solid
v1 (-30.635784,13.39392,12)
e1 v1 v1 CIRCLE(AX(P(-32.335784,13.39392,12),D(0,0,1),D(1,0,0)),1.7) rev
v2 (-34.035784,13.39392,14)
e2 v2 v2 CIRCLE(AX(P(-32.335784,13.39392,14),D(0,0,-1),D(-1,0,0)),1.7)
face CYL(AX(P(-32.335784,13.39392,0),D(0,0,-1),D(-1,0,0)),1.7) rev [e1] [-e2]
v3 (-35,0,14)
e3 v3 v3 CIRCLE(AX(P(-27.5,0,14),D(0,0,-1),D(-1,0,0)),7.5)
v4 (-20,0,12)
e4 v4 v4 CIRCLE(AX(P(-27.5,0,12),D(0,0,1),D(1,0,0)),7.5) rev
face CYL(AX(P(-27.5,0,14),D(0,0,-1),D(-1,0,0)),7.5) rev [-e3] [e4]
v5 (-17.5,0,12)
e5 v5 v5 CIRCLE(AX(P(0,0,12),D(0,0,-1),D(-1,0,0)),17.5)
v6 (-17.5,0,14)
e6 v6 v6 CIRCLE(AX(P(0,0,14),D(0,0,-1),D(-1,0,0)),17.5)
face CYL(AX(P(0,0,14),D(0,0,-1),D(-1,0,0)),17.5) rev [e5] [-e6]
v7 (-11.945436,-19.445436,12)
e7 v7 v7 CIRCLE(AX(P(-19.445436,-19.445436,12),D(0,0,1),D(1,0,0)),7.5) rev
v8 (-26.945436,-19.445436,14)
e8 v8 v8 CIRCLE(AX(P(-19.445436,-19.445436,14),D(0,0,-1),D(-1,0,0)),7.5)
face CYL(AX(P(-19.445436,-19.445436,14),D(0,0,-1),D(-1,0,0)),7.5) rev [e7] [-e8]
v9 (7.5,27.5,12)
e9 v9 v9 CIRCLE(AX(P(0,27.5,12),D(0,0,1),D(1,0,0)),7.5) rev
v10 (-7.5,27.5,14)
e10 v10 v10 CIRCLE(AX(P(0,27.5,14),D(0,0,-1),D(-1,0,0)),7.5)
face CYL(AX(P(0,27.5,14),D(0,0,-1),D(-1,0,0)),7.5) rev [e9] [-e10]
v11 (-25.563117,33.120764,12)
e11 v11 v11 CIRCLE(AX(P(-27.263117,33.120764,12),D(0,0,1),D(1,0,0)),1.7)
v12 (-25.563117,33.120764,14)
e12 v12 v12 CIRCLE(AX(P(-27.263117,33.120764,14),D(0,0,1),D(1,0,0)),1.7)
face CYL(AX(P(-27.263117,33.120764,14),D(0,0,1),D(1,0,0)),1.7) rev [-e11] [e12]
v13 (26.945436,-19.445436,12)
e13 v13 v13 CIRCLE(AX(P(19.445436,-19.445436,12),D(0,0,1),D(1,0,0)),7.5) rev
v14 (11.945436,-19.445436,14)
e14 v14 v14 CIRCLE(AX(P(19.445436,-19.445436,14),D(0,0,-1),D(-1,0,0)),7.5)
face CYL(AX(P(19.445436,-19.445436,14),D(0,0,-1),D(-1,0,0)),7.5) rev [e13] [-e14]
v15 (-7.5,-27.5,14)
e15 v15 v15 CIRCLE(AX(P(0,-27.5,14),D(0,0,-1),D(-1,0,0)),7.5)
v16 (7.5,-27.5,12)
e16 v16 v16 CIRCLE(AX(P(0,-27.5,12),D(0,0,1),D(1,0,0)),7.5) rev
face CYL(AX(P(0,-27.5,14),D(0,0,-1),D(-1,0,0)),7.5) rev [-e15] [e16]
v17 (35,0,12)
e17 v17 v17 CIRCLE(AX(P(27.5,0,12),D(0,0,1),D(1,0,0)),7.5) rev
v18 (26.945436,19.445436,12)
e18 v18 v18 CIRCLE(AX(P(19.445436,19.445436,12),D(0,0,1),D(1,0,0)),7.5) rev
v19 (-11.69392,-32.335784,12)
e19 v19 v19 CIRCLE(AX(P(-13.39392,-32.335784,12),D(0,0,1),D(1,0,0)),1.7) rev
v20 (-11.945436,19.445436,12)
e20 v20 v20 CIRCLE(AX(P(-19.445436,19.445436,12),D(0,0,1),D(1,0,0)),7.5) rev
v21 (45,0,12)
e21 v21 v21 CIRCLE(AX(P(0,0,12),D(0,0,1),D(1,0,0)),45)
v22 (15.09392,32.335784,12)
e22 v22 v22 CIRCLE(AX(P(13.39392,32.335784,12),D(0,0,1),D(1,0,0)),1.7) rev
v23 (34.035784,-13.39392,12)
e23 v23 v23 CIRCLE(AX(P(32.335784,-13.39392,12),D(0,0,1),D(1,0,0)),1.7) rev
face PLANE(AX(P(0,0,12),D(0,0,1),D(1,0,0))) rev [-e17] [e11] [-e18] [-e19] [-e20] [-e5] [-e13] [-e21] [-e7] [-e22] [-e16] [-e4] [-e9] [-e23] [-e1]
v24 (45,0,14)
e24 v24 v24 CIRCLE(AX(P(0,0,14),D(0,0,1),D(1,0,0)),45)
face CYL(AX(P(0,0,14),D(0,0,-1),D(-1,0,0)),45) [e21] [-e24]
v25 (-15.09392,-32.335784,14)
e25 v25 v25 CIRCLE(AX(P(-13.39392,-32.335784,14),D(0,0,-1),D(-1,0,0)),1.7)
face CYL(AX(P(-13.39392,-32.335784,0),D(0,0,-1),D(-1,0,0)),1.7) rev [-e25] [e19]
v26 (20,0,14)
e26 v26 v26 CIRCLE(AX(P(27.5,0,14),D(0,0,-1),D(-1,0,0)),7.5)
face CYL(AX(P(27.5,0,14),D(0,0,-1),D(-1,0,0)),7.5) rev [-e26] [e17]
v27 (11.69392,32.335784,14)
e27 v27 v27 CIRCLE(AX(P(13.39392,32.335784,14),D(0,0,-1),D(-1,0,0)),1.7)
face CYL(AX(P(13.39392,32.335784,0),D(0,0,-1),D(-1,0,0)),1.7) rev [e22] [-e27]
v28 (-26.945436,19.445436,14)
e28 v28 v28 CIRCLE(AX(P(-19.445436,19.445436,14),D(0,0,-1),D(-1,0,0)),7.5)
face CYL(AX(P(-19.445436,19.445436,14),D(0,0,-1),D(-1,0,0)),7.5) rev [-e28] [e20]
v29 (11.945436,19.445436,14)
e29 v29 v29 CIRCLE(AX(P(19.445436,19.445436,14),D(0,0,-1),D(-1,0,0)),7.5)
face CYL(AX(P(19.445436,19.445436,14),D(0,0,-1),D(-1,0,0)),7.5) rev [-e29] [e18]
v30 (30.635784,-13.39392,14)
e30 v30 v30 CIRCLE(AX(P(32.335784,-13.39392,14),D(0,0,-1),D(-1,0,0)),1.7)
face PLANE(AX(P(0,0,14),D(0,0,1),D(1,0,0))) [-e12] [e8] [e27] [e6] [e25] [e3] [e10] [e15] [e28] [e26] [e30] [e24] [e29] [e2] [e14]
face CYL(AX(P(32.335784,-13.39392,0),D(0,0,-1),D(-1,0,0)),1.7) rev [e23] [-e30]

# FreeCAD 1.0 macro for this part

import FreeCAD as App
import Part
import Sketcher
Q = App.Units.Quantity

doc = App.newDocument("Part")
params = doc.addObject("Spreadsheet::Sheet", "Params")
for row, (alias, value) in enumerate([
    ("sketch1_diameter", "80 mm"),
    ("pad1_length", "12 mm"),
    ("sketch2_diameter", "90 mm"),
    ("pad2_length", "2 mm"),
    ("sketch3_diameter", "15 mm"),
    ("sketch4_diameter", "3.4 mm"),
    ("hole_diameter", "3.4 mm"),
    ("sketch5_diameter", "3.4 mm"),
    ("hole2_diameter", "3.4 mm"),
    ("sketch6_diameter", "15 mm"),
    ("sketch7_diameter", "3.4 mm"),
    ("hole3_diameter", "3.4 mm"),
    ("sketch8_diameter", "34 mm"),
    ("pocket3_length", "1.5 mm"),
    ("pocket4_length", "12 mm"),
    ("sketch10_diameter", "35 mm"),
], start=1):
    params.set(f"A{row}", alias)
    params.set(f"B{row}", "=" + value)
    params.setAlias(f"B{row}", alias)

body = doc.addObject("PartDesign::Body", "Body")

# Sketch on XY plane
sketch1 = body.newObject("Sketcher::SketchObject", "Sketch")
sketch1.AttachmentSupport = (doc.getObject("XY_Plane"), [""])
sketch1.MapMode = "FlatFace"
sketch1.addGeometry(Part.Circle(App.Vector(0, 0, 0), App.Vector(0, 0, 1), 40), False)
sketch1.addConstraint([
    Sketcher.Constraint("Coincident", 0, 3, -1, 1),
    Sketcher.Constraint("Diameter", 0, Q("80 mm")),
])
sketch1.setExpression("Constraints[1]", "Params.sketch1_diameter")
pad1 = body.newObject("PartDesign::Pad", "Pad")
pad1.Profile = sketch1
pad1.setExpression("Length", "Params.pad1_length")

# Sketch on XY plane
sketch2 = body.newObject("Sketcher::SketchObject", "Sketch001")
sketch2.AttachmentSupport = (doc.getObject("XY_Plane"), [""])
sketch2.MapMode = "FlatFace"
sketch2.AttachmentOffset = App.Placement(App.Vector(0, 0, 12), App.Rotation())
sketch2.addGeometry(Part.Circle(App.Vector(0, 0, 0), App.Vector(0, 0, 1), 45), False)
sketch2.addConstraint([
    Sketcher.Constraint("Coincident", 0, 3, -1, 1),
    Sketcher.Constraint("Diameter", 0, Q("90 mm")),
])
sketch2.setExpression("Constraints[1]", "Params.sketch2_diameter")
pad2 = body.newObject("PartDesign::Pad", "Pad001")
pad2.Profile = sketch2
pad2.setExpression("Length", "Params.pad2_length")

# Sketch on XY plane
sketch3 = body.newObject("Sketcher::SketchObject", "Sketch002")
sketch3.AttachmentSupport = (doc.getObject("XY_Plane"), [""])
sketch3.MapMode = "FlatFace"
sketch3.AttachmentOffset = App.Placement(App.Vector(0, 0, 14), App.Rotation())
sketch3.addGeometry(Part.Circle(App.Vector(0, 0, 0), App.Vector(0, 0, 1), 7.5), False)
sketch3.addConstraint([
    Sketcher.Constraint("Coincident", 0, 3, -1, 1),
    Sketcher.Constraint("Diameter", 0, Q("15 mm")),
])
sketch3.setExpression("Constraints[1]", "Params.sketch3_diameter")
pocket1 = body.newObject("PartDesign::Pocket", "Pocket")
pocket1.Profile = sketch3
pocket1.Type = "ThroughAll"

# Sketch on XY plane
sketch4 = body.newObject("Sketcher::SketchObject", "Sketch003")
sketch4.AttachmentSupport = (doc.getObject("XY_Plane"), [""])
sketch4.MapMode = "FlatFace"
sketch4.AttachmentOffset = App.Placement(App.Vector(0, 0, 14), App.Rotation())
sketch4.addGeometry(Part.Circle(App.Vector(-27.263117, 33.120764, 0), App.Vector(0, 0, 1), 1.7), False)
sketch4.addConstraint([
    Sketcher.Constraint("Diameter", 0, Q("3.4 mm")),
    Sketcher.Constraint("DistanceX", 0, 3, -1, 1, Q("27.263117 mm")),
    Sketcher.Constraint("DistanceY", -1, 1, 0, 3, Q("33.120764 mm")),
])
sketch4.setExpression("Constraints[0]", "Params.sketch4_diameter")
doc.recompute()
hole = body.newObject("PartDesign::Hole", "Hole")
hole.Profile = sketch4
hole.ThreadType = "None"
hole.setExpression("Diameter", "Params.hole_diameter")
hole.DepthType = "ThroughAll"

# Sketch on XY plane
sketch5 = body.newObject("Sketcher::SketchObject", "Sketch004")
sketch5.AttachmentSupport = (doc.getObject("XY_Plane"), [""])
sketch5.MapMode = "FlatFace"
sketch5.AttachmentOffset = App.Placement(App.Vector(0, 0, 14), App.Rotation())
sketch5.addGeometry([
    Part.Circle(App.Vector(0, 12.5, 0), App.Vector(0, 0, 1), 1.7),
    Part.Circle(App.Vector(-12.5, 0, 0), App.Vector(0, 0, 1), 1.7),
    Part.Circle(App.Vector(0, -12.5, 0), App.Vector(0, 0, 1), 1.7),
    Part.Circle(App.Vector(12.5, 0, 0), App.Vector(0, 0, 1), 1.7),
], False)
sketch5.addConstraint([
    Sketcher.Constraint("Equal", 0, 1),
    Sketcher.Constraint("Equal", 1, 2),
    Sketcher.Constraint("Equal", 2, 3),
    Sketcher.Constraint("Symmetric", 0, 3, 2, 3, -1, 1),
    Sketcher.Constraint("Symmetric", 1, 3, 3, 3, -1, 1),
    Sketcher.Constraint("PointOnObject", 0, 3, -2),
    Sketcher.Constraint("PointOnObject", 1, 3, -1),
    Sketcher.Constraint("Diameter", 0, Q("3.4 mm")),
    Sketcher.Constraint("DistanceY", 2, 3, 0, 3, Q("25 mm")),
    Sketcher.Constraint("DistanceX", 1, 3, 3, 3, Q("25 mm")),
])
sketch5.setExpression("Constraints[7]", "Params.sketch5_diameter")
doc.recompute()
hole2 = body.newObject("PartDesign::Hole", "Hole001")
hole2.Profile = sketch5
hole2.ThreadType = "None"
hole2.setExpression("Diameter", "Params.hole2_diameter")
hole2.DepthType = "ThroughAll"

# Sketch on XY plane
sketch6 = body.newObject("Sketcher::SketchObject", "Sketch005")
sketch6.AttachmentSupport = (doc.getObject("XY_Plane"), [""])
sketch6.MapMode = "FlatFace"
sketch6.addGeometry([
    Part.Circle(App.Vector(0, 27.5, 0), App.Vector(0, 0, 1), 7.5),  # 0
    Part.Circle(App.Vector(-19.445436, 19.445436, 0), App.Vector(0, 0, 1), 7.5),  # 1
    Part.Circle(App.Vector(-27.5, 0, 0), App.Vector(0, 0, 1), 7.5),  # 2
    Part.Circle(App.Vector(-19.445436, -19.445436, 0), App.Vector(0, 0, 1), 7.5),  # 3
    Part.Circle(App.Vector(0, -27.5, 0), App.Vector(0, 0, 1), 7.5),  # 4
    Part.Circle(App.Vector(19.445436, -19.445436, 0), App.Vector(0, 0, 1), 7.5),  # 5
    Part.Circle(App.Vector(27.5, 0, 0), App.Vector(0, 0, 1), 7.5),  # 6
    Part.Circle(App.Vector(19.445436, 19.445436, 0), App.Vector(0, 0, 1), 7.5),  # 7
], False)
sketch6.addConstraint([
    Sketcher.Constraint("Equal", 0, 1),
    Sketcher.Constraint("Equal", 1, 2),
    Sketcher.Constraint("Equal", 2, 3),
    Sketcher.Constraint("Equal", 3, 4),
    Sketcher.Constraint("Equal", 4, 5),
    Sketcher.Constraint("Equal", 5, 6),
    Sketcher.Constraint("Equal", 6, 7),
    Sketcher.Constraint("Symmetric", 0, 3, 4, 3, -1, 1),
    Sketcher.Constraint("Symmetric", 1, 3, 5, 3, -1, 1),
    Sketcher.Constraint("Symmetric", 2, 3, 6, 3, -1, 1),
    Sketcher.Constraint("Symmetric", 3, 3, 7, 3, -1, 1),
    Sketcher.Constraint("Symmetric", 3, 3, 5, 3, -2),
    Sketcher.Constraint("PointOnObject", 0, 3, -2),
    Sketcher.Constraint("PointOnObject", 2, 3, -1),
    Sketcher.Constraint("Diameter", 0, Q("15 mm")),
    Sketcher.Constraint("DistanceY", 4, 3, 0, 3, Q("55 mm")),
    Sketcher.Constraint("DistanceX", 2, 3, -1, 1, Q("27.5 mm")),
    Sketcher.Constraint("DistanceX", 1, 3, -1, 1, Q("19.445436 mm")),
    Sketcher.Constraint("DistanceY", -1, 1, 1, 3, Q("19.445436 mm")),
])
sketch6.setExpression("Constraints[14]", "Params.sketch6_diameter")
pocket2 = body.newObject("PartDesign::Pocket", "Pocket001")
pocket2.Profile = sketch6
pocket2.Type = "ThroughAll"
pocket2.Reversed = True

# Sketch on XY plane
sketch7 = body.newObject("Sketcher::SketchObject", "Sketch006")
sketch7.AttachmentSupport = (doc.getObject("XY_Plane"), [""])
sketch7.MapMode = "FlatFace"
sketch7.addGeometry([
    Part.Circle(App.Vector(13.39392, 32.335784, 0), App.Vector(0, 0, 1), 1.7),
    Part.Circle(App.Vector(-13.39392, -32.335784, 0), App.Vector(0, 0, 1), 1.7),
    Part.Circle(App.Vector(-32.335784, 13.39392, 0), App.Vector(0, 0, 1), 1.7),
    Part.Circle(App.Vector(32.335784, -13.39392, 0), App.Vector(0, 0, 1), 1.7),
], False)
sketch7.addConstraint([
    Sketcher.Constraint("Equal", 0, 1),
    Sketcher.Constraint("Equal", 1, 2),
    Sketcher.Constraint("Equal", 2, 3),
    Sketcher.Constraint("Symmetric", 0, 3, 1, 3, -1, 1),
    Sketcher.Constraint("Symmetric", 2, 3, 3, 3, -1, 1),
    Sketcher.Constraint("Diameter", 0, Q("3.4 mm")),
    Sketcher.Constraint("DistanceX", -1, 1, 0, 3, Q("13.39392 mm")),
    Sketcher.Constraint("DistanceY", -1, 1, 2, 3, Q("13.39392 mm")),
    Sketcher.Constraint("DistanceY", -1, 1, 0, 3, Q("32.335784 mm")),
    Sketcher.Constraint("DistanceX", 2, 3, -1, 1, Q("32.335784 mm")),
])
sketch7.setExpression("Constraints[5]", "Params.sketch7_diameter")
doc.recompute()
hole3 = body.newObject("PartDesign::Hole", "Hole002")
hole3.Profile = sketch7
hole3.ThreadType = "None"
hole3.setExpression("Diameter", "Params.hole3_diameter")
hole3.DepthType = "ThroughAll"
hole3.Reversed = True

# Sketch on XY plane
sketch8 = body.newObject("Sketcher::SketchObject", "Sketch007")
sketch8.AttachmentSupport = (doc.getObject("XY_Plane"), [""])
sketch8.MapMode = "FlatFace"
sketch8.addGeometry(Part.Circle(App.Vector(0, 0, 0), App.Vector(0, 0, 1), 17), False)
sketch8.addConstraint([
    Sketcher.Constraint("Coincident", 0, 3, -1, 1),
    Sketcher.Constraint("Diameter", 0, Q("34 mm")),
])
sketch8.setExpression("Constraints[1]", "Params.sketch8_diameter")
pocket3 = body.newObject("PartDesign::Pocket", "Pocket002")
pocket3.Profile = sketch8
pocket3.setExpression("Length", "Params.pocket3_length")
pocket3.Reversed = True

# Sketch on XY plane
sketch9 = body.newObject("Sketcher::SketchObject", "Sketch008")
sketch9.AttachmentSupport = (doc.getObject("XY_Plane"), [""])
sketch9.MapMode = "FlatFace"
sketch9.addGeometry(Part.Circle(App.Vector(0, 0, 0), App.Vector(0, 0, 1), 44.163842), False)
sketch9.addConstraint([
    Sketcher.Constraint("Coincident", 0, 3, -1, 1),
    Sketcher.Constraint("Diameter", 0, Q("88.327683 mm")),
])
pocket4 = body.newObject("PartDesign::Pocket", "Pocket003")
pocket4.Profile = sketch9
pocket4.setExpression("Length", "Params.pocket4_length")
pocket4.Reversed = True

# Sketch on XY plane
sketch10 = body.newObject("Sketcher::SketchObject", "Sketch009")
sketch10.AttachmentSupport = (doc.getObject("XY_Plane"), [""])
sketch10.MapMode = "FlatFace"
sketch10.AttachmentOffset = App.Placement(App.Vector(0, 0, 12), App.Rotation())
sketch10.addGeometry(Part.Circle(App.Vector(0, 0, 0), App.Vector(0, 0, 1), 17.5), False)
sketch10.addConstraint([
    Sketcher.Constraint("Coincident", 0, 3, -1, 1),
    Sketcher.Constraint("Diameter", 0, Q("35 mm")),
])
sketch10.setExpression("Constraints[1]", "Params.sketch10_diameter")
pocket5 = body.newObject("PartDesign::Pocket", "Pocket004")
pocket5.Profile = sketch10
pocket5.Type = "ThroughAll"
pocket5.Reversed = True

doc.recompute()
